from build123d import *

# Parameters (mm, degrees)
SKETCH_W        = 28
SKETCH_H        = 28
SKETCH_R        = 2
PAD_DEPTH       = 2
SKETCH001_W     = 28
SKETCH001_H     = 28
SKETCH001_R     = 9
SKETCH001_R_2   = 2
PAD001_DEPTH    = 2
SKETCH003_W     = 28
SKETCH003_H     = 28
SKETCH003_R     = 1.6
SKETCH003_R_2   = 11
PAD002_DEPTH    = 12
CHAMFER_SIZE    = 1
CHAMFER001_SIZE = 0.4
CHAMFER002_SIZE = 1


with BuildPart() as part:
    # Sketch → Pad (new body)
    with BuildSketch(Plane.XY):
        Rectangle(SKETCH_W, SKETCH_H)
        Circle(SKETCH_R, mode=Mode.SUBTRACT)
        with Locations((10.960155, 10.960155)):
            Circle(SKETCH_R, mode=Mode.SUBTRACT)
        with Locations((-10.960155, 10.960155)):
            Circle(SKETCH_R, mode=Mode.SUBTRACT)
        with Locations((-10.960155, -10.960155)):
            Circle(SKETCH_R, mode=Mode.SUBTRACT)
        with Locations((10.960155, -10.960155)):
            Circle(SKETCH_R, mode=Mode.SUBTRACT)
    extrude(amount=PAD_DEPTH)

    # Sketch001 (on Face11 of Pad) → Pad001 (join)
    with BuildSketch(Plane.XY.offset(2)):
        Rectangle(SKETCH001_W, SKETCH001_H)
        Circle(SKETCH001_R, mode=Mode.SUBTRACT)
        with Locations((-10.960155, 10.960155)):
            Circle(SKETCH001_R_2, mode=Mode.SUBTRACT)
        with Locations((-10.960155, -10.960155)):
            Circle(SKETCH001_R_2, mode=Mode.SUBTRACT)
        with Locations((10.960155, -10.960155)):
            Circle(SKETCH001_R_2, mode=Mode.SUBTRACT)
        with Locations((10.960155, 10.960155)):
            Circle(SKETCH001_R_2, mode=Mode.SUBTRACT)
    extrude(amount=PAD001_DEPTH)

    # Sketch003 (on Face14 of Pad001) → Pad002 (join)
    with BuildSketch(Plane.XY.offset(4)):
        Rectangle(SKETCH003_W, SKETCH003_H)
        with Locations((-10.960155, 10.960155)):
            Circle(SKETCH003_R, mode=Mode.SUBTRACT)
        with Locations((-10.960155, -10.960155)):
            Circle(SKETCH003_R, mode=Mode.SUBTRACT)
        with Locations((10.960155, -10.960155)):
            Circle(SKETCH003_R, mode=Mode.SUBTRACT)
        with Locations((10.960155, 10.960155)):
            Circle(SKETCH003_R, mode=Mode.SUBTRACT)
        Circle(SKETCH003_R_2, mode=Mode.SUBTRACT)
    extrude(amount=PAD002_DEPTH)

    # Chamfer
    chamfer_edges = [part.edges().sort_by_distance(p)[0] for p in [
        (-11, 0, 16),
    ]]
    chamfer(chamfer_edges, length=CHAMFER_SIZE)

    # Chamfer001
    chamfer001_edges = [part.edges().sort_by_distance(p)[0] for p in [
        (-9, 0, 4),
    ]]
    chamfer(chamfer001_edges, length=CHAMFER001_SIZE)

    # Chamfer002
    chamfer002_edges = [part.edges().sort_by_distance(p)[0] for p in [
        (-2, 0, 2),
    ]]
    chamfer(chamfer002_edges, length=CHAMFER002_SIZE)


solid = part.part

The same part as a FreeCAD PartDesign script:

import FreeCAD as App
import Part
import Sketcher


def edges_at(feature, points):
    """Names of the edges that pass closest to the given points."""
    edges = feature.Shape.Edges
    near = lambda p: min(range(len(edges)), key=lambda i: edges[i].distToShape(Part.Vertex(*p))[0])
    return sorted({f"Edge{near(p) + 1}" for p in points})

doc = App.newDocument("Part")
body = doc.addObject("PartDesign::Body", "Body")

# Sketch on XY plane
sketch1 = body.newObject("Sketcher::SketchObject", "Sketch")
sketch1.AttachmentSupport = (doc.getObject("XY_Plane"), [""])
sketch1.MapMode = "FlatFace"
sketch1.addGeometry(Part.LineSegment(App.Vector(-14, 14, 0), App.Vector(-14, -14, 0)), False)
sketch1.addGeometry(Part.LineSegment(App.Vector(-14, -14, 0), App.Vector(14, -14, 0)), False)
sketch1.addGeometry(Part.LineSegment(App.Vector(14, -14, 0), App.Vector(14, 14, 0)), False)
sketch1.addGeometry(Part.LineSegment(App.Vector(14, 14, 0), App.Vector(-14, 14, 0)), False)
sketch1.addGeometry(Part.Circle(App.Vector(-11, -11, 0), App.Vector(0, 0, 1), 2), False)
sketch1.addGeometry(Part.Circle(App.Vector(11, -11, 0), App.Vector(0, 0, 1), 2), False)
sketch1.addGeometry(Part.Circle(App.Vector(-11, 11, 0), App.Vector(0, 0, 1), 2), False)
sketch1.addGeometry(Part.Circle(App.Vector(0, 0, 0), App.Vector(0, 0, 1), 2), False)
sketch1.addGeometry(Part.Circle(App.Vector(11, 11, 0), App.Vector(0, 0, 1), 2), False)
sketch1.addConstraint(Sketcher.Constraint("Coincident", 0, 2, 1, 1))
sketch1.addConstraint(Sketcher.Constraint("Coincident", 1, 2, 2, 1))
sketch1.addConstraint(Sketcher.Constraint("Coincident", 2, 2, 3, 1))
sketch1.addConstraint(Sketcher.Constraint("Coincident", 3, 2, 0, 1))
sketch1.addConstraint(Sketcher.Constraint("Vertical", 0))
sketch1.addConstraint(Sketcher.Constraint("Horizontal", 1))
sketch1.addConstraint(Sketcher.Constraint("Vertical", 2))
sketch1.addConstraint(Sketcher.Constraint("Horizontal", 3))
sketch1.addConstraint(Sketcher.Constraint("Coincident", 7, 3, -1, 1))
sketch1.addConstraint(Sketcher.Constraint("Equal", 4, 5))
sketch1.addConstraint(Sketcher.Constraint("Equal", 5, 6))
sketch1.addConstraint(Sketcher.Constraint("Equal", 6, 7))
sketch1.addConstraint(Sketcher.Constraint("Equal", 7, 8))
sketch1.addConstraint(Sketcher.Constraint("Symmetric", 5, 3, 6, 3, -1, 1))
sketch1.addConstraint(Sketcher.Constraint("Symmetric", 4, 3, 8, 3, -1, 1))
sketch1.addConstraint(Sketcher.Constraint("Symmetric", 0, 2, 2, 2, -1, 1))
sketch1.addConstraint(Sketcher.Constraint("Symmetric", 4, 3, 5, 3, -2))
sketch1.addConstraint(Sketcher.Constraint("Equal", 3, 0))
sketch1.addConstraint(Sketcher.Constraint("Diameter", 4, 4.0))
sketch1.addConstraint(Sketcher.Constraint("DistanceX", 1, 1, 1, 2, 28.0))
sketch1.addConstraint(Sketcher.Constraint("DistanceX", 4, 3, 5, 3, 21.92031))
sketch1.addConstraint(Sketcher.Constraint("DistanceY", 4, 3, 6, 3, 21.92031))
pad1 = body.newObject("PartDesign::Pad", "Pad")
pad1.Profile = sketch1
pad1.Length = 2

# Sketch on XY plane
sketch2 = body.newObject("Sketcher::SketchObject", "Sketch001")
sketch2.AttachmentSupport = (doc.getObject("XY_Plane"), [""])
sketch2.MapMode = "FlatFace"
sketch2.AttachmentOffset = App.Placement(App.Vector(0, 0, 2), App.Rotation())
sketch2.addGeometry(Part.LineSegment(App.Vector(-14, 14, 0), App.Vector(-14, -14, 0)), False)
sketch2.addGeometry(Part.LineSegment(App.Vector(-14, -14, 0), App.Vector(14, -14, 0)), False)
sketch2.addGeometry(Part.LineSegment(App.Vector(14, -14, 0), App.Vector(14, 14, 0)), False)
sketch2.addGeometry(Part.LineSegment(App.Vector(14, 14, 0), App.Vector(-14, 14, 0)), False)
sketch2.addGeometry(Part.Circle(App.Vector(-11, -11, 0), App.Vector(0, 0, 1), 2), False)
sketch2.addGeometry(Part.Circle(App.Vector(11, -11, 0), App.Vector(0, 0, 1), 2), False)
sketch2.addGeometry(Part.Circle(App.Vector(-11, 11, 0), App.Vector(0, 0, 1), 2), False)
sketch2.addGeometry(Part.Circle(App.Vector(0, 0, 0), App.Vector(0, 0, 1), 9), False)
sketch2.addGeometry(Part.Circle(App.Vector(11, 11, 0), App.Vector(0, 0, 1), 2), False)
sketch2.addConstraint(Sketcher.Constraint("Coincident", 0, 2, 1, 1))
sketch2.addConstraint(Sketcher.Constraint("Coincident", 1, 2, 2, 1))
sketch2.addConstraint(Sketcher.Constraint("Coincident", 2, 2, 3, 1))
sketch2.addConstraint(Sketcher.Constraint("Coincident", 3, 2, 0, 1))
sketch2.addConstraint(Sketcher.Constraint("Vertical", 0))
sketch2.addConstraint(Sketcher.Constraint("Horizontal", 1))
sketch2.addConstraint(Sketcher.Constraint("Vertical", 2))
sketch2.addConstraint(Sketcher.Constraint("Horizontal", 3))
sketch2.addConstraint(Sketcher.Constraint("Coincident", 7, 3, -1, 1))
sketch2.addConstraint(Sketcher.Constraint("Equal", 4, 5))
sketch2.addConstraint(Sketcher.Constraint("Equal", 5, 6))
sketch2.addConstraint(Sketcher.Constraint("Equal", 6, 8))
sketch2.addConstraint(Sketcher.Constraint("Symmetric", 5, 3, 6, 3, -1, 1))
sketch2.addConstraint(Sketcher.Constraint("Symmetric", 4, 3, 8, 3, -1, 1))
sketch2.addConstraint(Sketcher.Constraint("Symmetric", 0, 2, 2, 2, -1, 1))
sketch2.addConstraint(Sketcher.Constraint("Symmetric", 4, 3, 5, 3, -2))
sketch2.addConstraint(Sketcher.Constraint("Equal", 3, 0))
sketch2.addConstraint(Sketcher.Constraint("Diameter", 4, 4.0))
sketch2.addConstraint(Sketcher.Constraint("Diameter", 7, 18.0))
sketch2.addConstraint(Sketcher.Constraint("DistanceX", 1, 1, 1, 2, 28.0))
sketch2.addConstraint(Sketcher.Constraint("DistanceX", 4, 3, 5, 3, 21.92031))
sketch2.addConstraint(Sketcher.Constraint("DistanceY", 4, 3, 6, 3, 21.92031))
pad2 = body.newObject("PartDesign::Pad", "Pad001")
pad2.Profile = sketch2
pad2.Length = 2

# Sketch on XY plane
sketch3 = body.newObject("Sketcher::SketchObject", "Sketch002")
sketch3.AttachmentSupport = (doc.getObject("XY_Plane"), [""])
sketch3.MapMode = "FlatFace"
sketch3.AttachmentOffset = App.Placement(App.Vector(0, 0, 4), App.Rotation())
sketch3.addGeometry(Part.LineSegment(App.Vector(-14, 14, 0), App.Vector(-14, -14, 0)), False)
sketch3.addGeometry(Part.LineSegment(App.Vector(-14, -14, 0), App.Vector(14, -14, 0)), False)
sketch3.addGeometry(Part.LineSegment(App.Vector(14, -14, 0), App.Vector(14, 14, 0)), False)
sketch3.addGeometry(Part.LineSegment(App.Vector(14, 14, 0), App.Vector(-14, 14, 0)), False)
sketch3.addGeometry(Part.Circle(App.Vector(-11, -11, 0), App.Vector(0, 0, 1), 1.6), False)
sketch3.addGeometry(Part.Circle(App.Vector(11, -11, 0), App.Vector(0, 0, 1), 1.6), False)
sketch3.addGeometry(Part.Circle(App.Vector(-11, 11, 0), App.Vector(0, 0, 1), 1.6), False)
sketch3.addGeometry(Part.Circle(App.Vector(0, 0, 0), App.Vector(0, 0, 1), 11), False)
sketch3.addGeometry(Part.Circle(App.Vector(11, 11, 0), App.Vector(0, 0, 1), 1.6), False)
sketch3.addConstraint(Sketcher.Constraint("Coincident", 0, 2, 1, 1))
sketch3.addConstraint(Sketcher.Constraint("Coincident", 1, 2, 2, 1))
sketch3.addConstraint(Sketcher.Constraint("Coincident", 2, 2, 3, 1))
sketch3.addConstraint(Sketcher.Constraint("Coincident", 3, 2, 0, 1))
sketch3.addConstraint(Sketcher.Constraint("Vertical", 0))
sketch3.addConstraint(Sketcher.Constraint("Horizontal", 1))
sketch3.addConstraint(Sketcher.Constraint("Vertical", 2))
sketch3.addConstraint(Sketcher.Constraint("Horizontal", 3))
sketch3.addConstraint(Sketcher.Constraint("Coincident", 7, 3, -1, 1))
sketch3.addConstraint(Sketcher.Constraint("Equal", 4, 5))
sketch3.addConstraint(Sketcher.Constraint("Equal", 5, 6))
sketch3.addConstraint(Sketcher.Constraint("Equal", 6, 8))
sketch3.addConstraint(Sketcher.Constraint("Symmetric", 5, 3, 6, 3, -1, 1))
sketch3.addConstraint(Sketcher.Constraint("Symmetric", 4, 3, 8, 3, -1, 1))
sketch3.addConstraint(Sketcher.Constraint("Symmetric", 0, 2, 2, 2, -1, 1))
sketch3.addConstraint(Sketcher.Constraint("Symmetric", 4, 3, 5, 3, -2))
sketch3.addConstraint(Sketcher.Constraint("Equal", 3, 0))
sketch3.addConstraint(Sketcher.Constraint("Diameter", 7, 22.0))
sketch3.addConstraint(Sketcher.Constraint("Diameter", 4, 3.2))
sketch3.addConstraint(Sketcher.Constraint("DistanceX", 1, 1, 1, 2, 28.0))
sketch3.addConstraint(Sketcher.Constraint("DistanceX", 4, 3, 5, 3, 21.92031))
sketch3.addConstraint(Sketcher.Constraint("DistanceY", 4, 3, 6, 3, 21.92031))
pad3 = body.newObject("PartDesign::Pad", "Pad002")
pad3.Profile = sketch3
pad3.Length = 12
doc.recompute()

chamfer = body.newObject("PartDesign::Chamfer", "Chamfer")
chamfer.Base = (pad3, edges_at(pad3, [(-11, 0, 16)]))
chamfer.Size = 1
doc.recompute()

chamfer2 = body.newObject("PartDesign::Chamfer", "Chamfer001")
chamfer2.Base = (chamfer, edges_at(chamfer, [(-9, 0, 4)]))
chamfer2.Size = 0.4
doc.recompute()

chamfer3 = body.newObject("PartDesign::Chamfer", "Chamfer002")
chamfer3.Base = (chamfer2, edges_at(chamfer2, [(-2, 0, 2)]))
chamfer3.Size = 1

doc.recompute()
